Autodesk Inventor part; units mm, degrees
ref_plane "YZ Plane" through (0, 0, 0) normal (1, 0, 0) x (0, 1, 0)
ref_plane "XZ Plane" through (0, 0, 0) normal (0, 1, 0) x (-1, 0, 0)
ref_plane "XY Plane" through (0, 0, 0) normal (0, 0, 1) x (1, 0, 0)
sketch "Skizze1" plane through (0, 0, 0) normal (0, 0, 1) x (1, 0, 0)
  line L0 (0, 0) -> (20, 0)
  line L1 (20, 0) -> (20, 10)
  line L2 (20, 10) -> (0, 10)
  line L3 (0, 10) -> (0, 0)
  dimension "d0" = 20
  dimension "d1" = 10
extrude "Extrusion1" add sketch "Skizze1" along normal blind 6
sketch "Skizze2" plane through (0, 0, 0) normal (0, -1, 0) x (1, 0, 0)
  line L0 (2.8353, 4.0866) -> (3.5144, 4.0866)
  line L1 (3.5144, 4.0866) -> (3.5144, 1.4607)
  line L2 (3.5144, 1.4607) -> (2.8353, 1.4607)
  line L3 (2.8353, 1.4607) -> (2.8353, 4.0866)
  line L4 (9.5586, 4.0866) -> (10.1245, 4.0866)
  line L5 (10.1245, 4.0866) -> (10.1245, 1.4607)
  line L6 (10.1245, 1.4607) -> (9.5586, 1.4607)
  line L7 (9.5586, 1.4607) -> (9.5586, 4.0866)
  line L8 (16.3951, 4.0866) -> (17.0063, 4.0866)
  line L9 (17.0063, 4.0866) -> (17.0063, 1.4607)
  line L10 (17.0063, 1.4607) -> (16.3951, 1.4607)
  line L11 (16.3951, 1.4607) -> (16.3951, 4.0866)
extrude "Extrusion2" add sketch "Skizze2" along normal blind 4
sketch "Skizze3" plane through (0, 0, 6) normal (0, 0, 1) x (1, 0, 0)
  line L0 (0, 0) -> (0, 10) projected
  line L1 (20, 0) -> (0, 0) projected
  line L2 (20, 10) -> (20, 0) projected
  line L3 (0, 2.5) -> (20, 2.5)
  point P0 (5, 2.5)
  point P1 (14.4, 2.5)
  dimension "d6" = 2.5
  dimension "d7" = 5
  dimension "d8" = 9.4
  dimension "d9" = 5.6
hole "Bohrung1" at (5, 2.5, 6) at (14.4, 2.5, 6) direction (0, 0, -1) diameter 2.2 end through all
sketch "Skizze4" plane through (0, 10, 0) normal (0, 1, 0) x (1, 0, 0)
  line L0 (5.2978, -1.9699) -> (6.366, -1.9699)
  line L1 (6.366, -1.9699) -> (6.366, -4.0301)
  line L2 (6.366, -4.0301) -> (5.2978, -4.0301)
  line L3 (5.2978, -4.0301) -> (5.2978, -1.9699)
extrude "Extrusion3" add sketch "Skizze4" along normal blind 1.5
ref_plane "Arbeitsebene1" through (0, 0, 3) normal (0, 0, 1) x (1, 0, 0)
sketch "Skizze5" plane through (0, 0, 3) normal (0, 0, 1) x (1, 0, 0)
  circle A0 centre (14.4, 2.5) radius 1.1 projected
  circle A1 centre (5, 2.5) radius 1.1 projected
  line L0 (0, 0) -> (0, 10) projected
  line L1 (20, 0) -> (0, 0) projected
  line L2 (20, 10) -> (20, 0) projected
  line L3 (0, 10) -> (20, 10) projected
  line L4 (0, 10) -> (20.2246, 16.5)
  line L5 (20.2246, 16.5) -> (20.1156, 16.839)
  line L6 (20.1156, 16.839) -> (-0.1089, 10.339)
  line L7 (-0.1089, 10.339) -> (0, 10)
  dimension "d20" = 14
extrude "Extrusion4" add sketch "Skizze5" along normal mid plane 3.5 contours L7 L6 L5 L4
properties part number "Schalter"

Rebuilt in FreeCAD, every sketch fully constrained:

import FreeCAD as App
import Part
import Sketcher
from FreeCAD import Vector
Q = App.Units.Quantity

doc = App.newDocument("Part")
body = doc.addObject("PartDesign::Body", "Body")
body.AllowCompound = True

# Sketch on XY plane
sketch1 = body.newObject("Sketcher::SketchObject", "Sketch")
sketch1.AttachmentSupport = (doc.getObject("XY_Plane"), [""])
sketch1.MapMode = "FlatFace"
sketch1.addGeometry([
    Part.LineSegment(Vector(0, 10, 0), Vector(0, 0, 0)),
    Part.LineSegment(Vector(0, 0, 0), Vector(20, 0, 0)),
    Part.LineSegment(Vector(20, 0, 0), Vector(20, 10, 0)),
    Part.LineSegment(Vector(20, 10, 0), Vector(0, 10, 0)),
], False)
sketch1.addConstraint([
    Sketcher.Constraint("Coincident", 0, 2, 1, 1),
    Sketcher.Constraint("Coincident", 1, 2, 2, 1),
    Sketcher.Constraint("Coincident", 2, 2, 3, 1),
    Sketcher.Constraint("Coincident", 3, 2, 0, 1),
    Sketcher.Constraint("Vertical", 0),
    Sketcher.Constraint("Horizontal", 1),
    Sketcher.Constraint("Vertical", 2),
    Sketcher.Constraint("Horizontal", 3),
    Sketcher.Constraint("Coincident", 0, 2, -1, 1),
    Sketcher.Constraint("DistanceX", 1, 1, 1, 2, Q("20 mm")),
    Sketcher.Constraint("DistanceY", 0, 2, 0, 1, Q("10 mm")),
])
pad1 = body.newObject("PartDesign::Pad", "Pad")
pad1.Profile = sketch1
pad1.Length = 6

# Sketch on XZ plane
sketch2 = body.newObject("Sketcher::SketchObject", "Sketch001")
sketch2.AttachmentSupport = (doc.getObject("XZ_Plane"), [""])
sketch2.MapMode = "FlatFace"
sketch2.addGeometry([
    Part.LineSegment(Vector(3.5144, 4.0866, 0), Vector(2.8353, 4.0866, 0)),  # 0
    Part.LineSegment(Vector(2.8353, 4.0866, 0), Vector(2.8353, 1.4607, 0)),  # 1
    Part.LineSegment(Vector(2.8353, 1.4607, 0), Vector(3.5144, 1.4607, 0)),  # 2
    Part.LineSegment(Vector(3.5144, 1.4607, 0), Vector(3.5144, 4.0866, 0)),  # 3
    Part.LineSegment(Vector(10.1245, 4.0866, 0), Vector(9.5586, 4.0866, 0)),  # 4
    Part.LineSegment(Vector(9.5586, 4.0866, 0), Vector(9.5586, 1.4607, 0)),  # 5
    Part.LineSegment(Vector(9.5586, 1.4607, 0), Vector(10.1245, 1.4607, 0)),  # 6
    Part.LineSegment(Vector(10.1245, 1.4607, 0), Vector(10.1245, 4.0866, 0)),  # 7
    Part.LineSegment(Vector(17.0063, 4.0866, 0), Vector(16.3951, 4.0866, 0)),  # 8
    Part.LineSegment(Vector(16.3951, 4.0866, 0), Vector(16.3951, 1.4607, 0)),  # 9
    Part.LineSegment(Vector(16.3951, 1.4607, 0), Vector(17.0063, 1.4607, 0)),  # 10
    Part.LineSegment(Vector(17.0063, 1.4607, 0), Vector(17.0063, 4.0866, 0)),  # 11
], False)
sketch2.addConstraint([
    Sketcher.Constraint("Coincident", 0, 2, 1, 1),
    Sketcher.Constraint("Coincident", 1, 2, 2, 1),
    Sketcher.Constraint("Coincident", 2, 2, 3, 1),
    Sketcher.Constraint("Coincident", 3, 2, 0, 1),
    Sketcher.Constraint("Coincident", 4, 2, 5, 1),
    Sketcher.Constraint("Coincident", 5, 2, 6, 1),
    Sketcher.Constraint("Coincident", 6, 2, 7, 1),
    Sketcher.Constraint("Coincident", 7, 2, 4, 1),
    Sketcher.Constraint("Coincident", 8, 2, 9, 1),
    Sketcher.Constraint("Coincident", 9, 2, 10, 1),
    Sketcher.Constraint("Coincident", 10, 2, 11, 1),
    Sketcher.Constraint("Coincident", 11, 2, 8, 1),
    Sketcher.Constraint("Horizontal", 0),
    Sketcher.Constraint("Vertical", 1),
    Sketcher.Constraint("Horizontal", 2),
    Sketcher.Constraint("Vertical", 3),
    Sketcher.Constraint("Horizontal", 4),
    Sketcher.Constraint("Vertical", 5),
    Sketcher.Constraint("Horizontal", 6),
    Sketcher.Constraint("Vertical", 7),
    Sketcher.Constraint("Horizontal", 8),
    Sketcher.Constraint("Vertical", 9),
    Sketcher.Constraint("Horizontal", 10),
    Sketcher.Constraint("Vertical", 11),
    Sketcher.Constraint("Horizontal", 3, 2, 4, 2),
    Sketcher.Constraint("Horizontal", 2, 2, 5, 2),
    Sketcher.Constraint("Horizontal", 7, 2, 8, 2),
    Sketcher.Constraint("Horizontal", 6, 2, 9, 2),
    Sketcher.Constraint("DistanceX", 0, 2, 0, 1, Q("0.679 mm")),
    Sketcher.Constraint("DistanceX", 4, 2, 4, 1, Q("0.566 mm")),
    Sketcher.Constraint("DistanceY", 1, 2, 1, 1, Q("2.626 mm")),
    Sketcher.Constraint("DistanceX", 2, 2, 6, 2, Q("6.61 mm")),
    Sketcher.Constraint("DistanceX", 8, 2, 8, 1, Q("0.6112 mm")),
    Sketcher.Constraint("DistanceX", -1, 1, 8, 2, Q("16.395 mm")),
    Sketcher.Constraint("DistanceX", -1, 1, 0, 2, Q("2.8353 mm")),
    Sketcher.Constraint("DistanceY", -1, 1, 0, 2, Q("4.0866 mm")),
])
pad2 = body.newObject("PartDesign::Pad", "Pad001")
pad2.Profile = sketch2
pad2.Length = 4

# Sketch on XY plane
sketch3 = body.newObject("Sketcher::SketchObject", "Sketch002")
sketch3.AttachmentSupport = (doc.getObject("XY_Plane"), [""])
sketch3.MapMode = "FlatFace"
sketch3.AttachmentOffset = App.Placement(Vector(0, 0, 6), App.Rotation())
sketch3.addGeometry([
    Part.Circle(Vector(5, 2.5, 0), Vector(0, 0, 1), 1.1),
    Part.Circle(Vector(14.4, 2.5, 0), Vector(0, 0, 1), 1.1),
], False)
sketch3.addConstraint([
    Sketcher.Constraint("Equal", 0, 1),
    Sketcher.Constraint("Horizontal", 0, 3, 1, 3),
    Sketcher.Constraint("Diameter", 0, Q("2.2 mm")),
    Sketcher.Constraint("DistanceX", -1, 1, 0, 3, Q("5 mm")),
    Sketcher.Constraint("DistanceY", -1, 1, 0, 3, Q("2.5 mm")),
    Sketcher.Constraint("DistanceX", -1, 1, 1, 3, Q("14.4 mm")),
])
doc.recompute()
hole = body.newObject("PartDesign::Hole", "Hole")
hole.Profile = sketch3
hole.ThreadType = "None"
hole.Diameter = 2.2
hole.DepthType = "ThroughAll"

# Sketch on XZ plane
sketch4 = body.newObject("Sketcher::SketchObject", "Sketch003")
sketch4.AttachmentSupport = (doc.getObject("XZ_Plane"), [""])
sketch4.MapMode = "FlatFace"
sketch4.AttachmentOffset = App.Placement(Vector(0, 0, -10), App.Rotation())
sketch4.addGeometry([
    Part.LineSegment(Vector(6.366, 1.9699, 0), Vector(5.2978, 1.9699, 0)),
    Part.LineSegment(Vector(5.2978, 1.9699, 0), Vector(5.2978, 4.0301, 0)),
    Part.LineSegment(Vector(5.2978, 4.0301, 0), Vector(6.366, 4.0301, 0)),
    Part.LineSegment(Vector(6.366, 4.0301, 0), Vector(6.366, 1.9699, 0)),
], False)
sketch4.addConstraint([
    Sketcher.Constraint("Coincident", 0, 2, 1, 1),
    Sketcher.Constraint("Coincident", 1, 2, 2, 1),
    Sketcher.Constraint("Coincident", 2, 2, 3, 1),
    Sketcher.Constraint("Coincident", 3, 2, 0, 1),
    Sketcher.Constraint("Horizontal", 0),
    Sketcher.Constraint("Vertical", 1),
    Sketcher.Constraint("Horizontal", 2),
    Sketcher.Constraint("Vertical", 3),
    Sketcher.Constraint("DistanceY", -1, 1, 0, 2, Q("1.97 mm")),
    Sketcher.Constraint("DistanceY", -1, 1, 1, 2, Q("4.03 mm")),
    Sketcher.Constraint("DistanceX", 0, 2, 0, 1, Q("1.0682 mm")),
    Sketcher.Constraint("DistanceX", -1, 1, 2, 2, Q("6.366 mm")),
])
pad3 = body.newObject("PartDesign::Pad", "Pad002")
pad3.Profile = sketch4
pad3.Length = 1.5
pad3.Reversed = True

# Sketch on XY plane
sketch5 = body.newObject("Sketcher::SketchObject", "Sketch004")
sketch5.AttachmentSupport = (doc.getObject("XY_Plane"), [""])
sketch5.MapMode = "FlatFace"
sketch5.AttachmentOffset = App.Placement(Vector(0, 0, 3), App.Rotation())
sketch5.addGeometry([
    Part.LineSegment(Vector(-0.1089, 10.339, 0), Vector(0, 10, 0)),
    Part.LineSegment(Vector(0, 10, 0), Vector(20.2246, 16.5, 0)),
    Part.LineSegment(Vector(20.2246, 16.5, 0), Vector(20.1156, 16.839, 0)),
    Part.LineSegment(Vector(20.1156, 16.839, 0), Vector(-0.1089, 10.339, 0)),
], False)
sketch5.addConstraint([
    Sketcher.Constraint("Coincident", 0, 2, 1, 1),
    Sketcher.Constraint("Coincident", 1, 2, 2, 1),
    Sketcher.Constraint("Coincident", 2, 2, 3, 1),
    Sketcher.Constraint("Coincident", 3, 2, 0, 1),
    Sketcher.Constraint("PointOnObject", 0, 2, -2),
    Sketcher.Constraint("DistanceY", -1, 1, 0, 2, Q("10 mm")),
    Sketcher.Constraint("DistanceY", -1, 1, 1, 2, Q("16.5 mm")),
    Sketcher.Constraint("DistanceY", 3, 2, 2, 2, Q("6.5 mm")),
    Sketcher.Constraint("Distance", 0, Q("0.356 mm")),
    Sketcher.Constraint("Distance", 2, Q("0.356 mm")),
    Sketcher.Constraint("DistanceY", -1, 1, 2, 2, Q("16.839 mm")),
    Sketcher.Constraint("Distance", 1, Q("21.2435 mm")),
])
pad4 = body.newObject("PartDesign::Pad", "Pad003")
pad4.Profile = sketch5
pad4.Length = 3.5
pad4.Midplane = True

doc.recompute()
